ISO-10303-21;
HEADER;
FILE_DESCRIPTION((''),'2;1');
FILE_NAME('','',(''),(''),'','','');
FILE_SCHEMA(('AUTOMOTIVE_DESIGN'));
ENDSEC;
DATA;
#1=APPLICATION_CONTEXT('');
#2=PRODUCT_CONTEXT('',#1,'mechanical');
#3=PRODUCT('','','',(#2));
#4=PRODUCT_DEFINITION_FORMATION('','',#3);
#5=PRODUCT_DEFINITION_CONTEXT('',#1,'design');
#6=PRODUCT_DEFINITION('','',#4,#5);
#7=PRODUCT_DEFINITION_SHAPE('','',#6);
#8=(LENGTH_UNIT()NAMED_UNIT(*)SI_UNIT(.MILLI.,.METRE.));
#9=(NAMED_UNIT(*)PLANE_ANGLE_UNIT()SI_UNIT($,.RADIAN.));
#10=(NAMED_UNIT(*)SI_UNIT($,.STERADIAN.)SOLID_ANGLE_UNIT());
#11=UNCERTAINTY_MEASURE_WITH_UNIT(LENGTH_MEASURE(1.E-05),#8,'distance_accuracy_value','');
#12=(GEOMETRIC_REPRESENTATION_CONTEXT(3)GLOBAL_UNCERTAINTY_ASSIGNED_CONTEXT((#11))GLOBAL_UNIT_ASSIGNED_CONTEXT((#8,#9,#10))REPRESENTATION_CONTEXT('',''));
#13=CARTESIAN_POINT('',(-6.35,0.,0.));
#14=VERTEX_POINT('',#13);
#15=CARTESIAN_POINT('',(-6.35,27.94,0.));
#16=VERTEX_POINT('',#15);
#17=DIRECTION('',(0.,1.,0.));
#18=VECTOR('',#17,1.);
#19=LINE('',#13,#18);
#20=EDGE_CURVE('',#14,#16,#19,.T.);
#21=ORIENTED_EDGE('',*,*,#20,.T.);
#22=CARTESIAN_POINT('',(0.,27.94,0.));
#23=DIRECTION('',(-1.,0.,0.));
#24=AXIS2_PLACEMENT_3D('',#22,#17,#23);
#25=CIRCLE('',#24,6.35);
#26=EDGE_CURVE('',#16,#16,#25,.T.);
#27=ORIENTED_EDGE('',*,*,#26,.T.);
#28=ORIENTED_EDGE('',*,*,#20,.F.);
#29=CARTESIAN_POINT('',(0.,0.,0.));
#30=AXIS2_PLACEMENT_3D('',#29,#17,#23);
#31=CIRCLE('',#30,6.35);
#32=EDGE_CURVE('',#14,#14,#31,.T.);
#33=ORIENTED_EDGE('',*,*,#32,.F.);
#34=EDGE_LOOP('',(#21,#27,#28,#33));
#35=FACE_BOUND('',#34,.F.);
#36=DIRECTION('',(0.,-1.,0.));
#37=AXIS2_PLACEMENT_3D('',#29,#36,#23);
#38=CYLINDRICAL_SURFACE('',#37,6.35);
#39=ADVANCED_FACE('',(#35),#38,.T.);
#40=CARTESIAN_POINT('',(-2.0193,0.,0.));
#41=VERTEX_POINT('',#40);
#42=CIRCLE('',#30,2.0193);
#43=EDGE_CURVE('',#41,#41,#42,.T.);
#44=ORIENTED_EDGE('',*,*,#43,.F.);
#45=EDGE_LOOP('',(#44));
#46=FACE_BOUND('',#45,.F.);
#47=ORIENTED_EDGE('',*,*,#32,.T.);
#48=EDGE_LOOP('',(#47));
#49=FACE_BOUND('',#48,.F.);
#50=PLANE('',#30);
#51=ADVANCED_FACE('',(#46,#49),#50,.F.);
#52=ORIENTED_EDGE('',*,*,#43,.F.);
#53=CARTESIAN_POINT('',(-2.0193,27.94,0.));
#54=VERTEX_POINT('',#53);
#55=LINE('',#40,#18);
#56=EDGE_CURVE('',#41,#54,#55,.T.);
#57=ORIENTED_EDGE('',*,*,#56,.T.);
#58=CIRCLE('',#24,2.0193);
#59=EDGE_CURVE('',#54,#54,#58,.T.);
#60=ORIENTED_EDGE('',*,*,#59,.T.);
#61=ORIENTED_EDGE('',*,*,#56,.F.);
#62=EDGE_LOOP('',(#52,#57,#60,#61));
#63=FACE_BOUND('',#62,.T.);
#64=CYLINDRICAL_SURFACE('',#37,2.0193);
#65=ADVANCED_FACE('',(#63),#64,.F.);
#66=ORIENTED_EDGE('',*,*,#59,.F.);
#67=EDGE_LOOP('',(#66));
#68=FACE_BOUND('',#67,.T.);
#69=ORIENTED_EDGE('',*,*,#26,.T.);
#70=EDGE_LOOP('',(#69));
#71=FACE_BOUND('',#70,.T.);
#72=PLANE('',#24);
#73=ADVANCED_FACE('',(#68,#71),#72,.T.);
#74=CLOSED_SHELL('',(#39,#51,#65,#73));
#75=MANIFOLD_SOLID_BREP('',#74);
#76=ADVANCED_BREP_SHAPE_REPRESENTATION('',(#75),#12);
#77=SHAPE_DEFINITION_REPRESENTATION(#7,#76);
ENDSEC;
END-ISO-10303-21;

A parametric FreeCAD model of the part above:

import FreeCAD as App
import Part
import Sketcher

V = App.Vector
Q = App.Units.Quantity

doc = App.newDocument("Part")
body = doc.addObject("PartDesign::Body", "Body")

# Sketch on XZ plane
sketch1 = body.newObject("Sketcher::SketchObject", "Sketch")
sketch1.AttachmentSupport = (doc.getObject("XZ_Plane"), [""])
sketch1.MapMode = "FlatFace"
sketch1.addGeometry([
    Part.Circle(V(0, 0, 0), V(0, 0, 1), 6.3),
    Part.Circle(V(0, 0, 0), V(0, 0, 1), 2),
], False)
sketch1.addConstraint([
    Sketcher.Constraint("Coincident", 0, 3, -1, 1),
    Sketcher.Constraint("Coincident", 1, 3, -1, 1),
    Sketcher.Constraint("Diameter", 0, Q("0.5 in")),
    Sketcher.Constraint("Diameter", 1, Q("0.159 in")),
])
pad1 = body.newObject("PartDesign::Pad", "Pad")
pad1.Profile = sketch1
pad1.Length = Q("1.1 in")
pad1.Reversed = True

doc.recompute()
